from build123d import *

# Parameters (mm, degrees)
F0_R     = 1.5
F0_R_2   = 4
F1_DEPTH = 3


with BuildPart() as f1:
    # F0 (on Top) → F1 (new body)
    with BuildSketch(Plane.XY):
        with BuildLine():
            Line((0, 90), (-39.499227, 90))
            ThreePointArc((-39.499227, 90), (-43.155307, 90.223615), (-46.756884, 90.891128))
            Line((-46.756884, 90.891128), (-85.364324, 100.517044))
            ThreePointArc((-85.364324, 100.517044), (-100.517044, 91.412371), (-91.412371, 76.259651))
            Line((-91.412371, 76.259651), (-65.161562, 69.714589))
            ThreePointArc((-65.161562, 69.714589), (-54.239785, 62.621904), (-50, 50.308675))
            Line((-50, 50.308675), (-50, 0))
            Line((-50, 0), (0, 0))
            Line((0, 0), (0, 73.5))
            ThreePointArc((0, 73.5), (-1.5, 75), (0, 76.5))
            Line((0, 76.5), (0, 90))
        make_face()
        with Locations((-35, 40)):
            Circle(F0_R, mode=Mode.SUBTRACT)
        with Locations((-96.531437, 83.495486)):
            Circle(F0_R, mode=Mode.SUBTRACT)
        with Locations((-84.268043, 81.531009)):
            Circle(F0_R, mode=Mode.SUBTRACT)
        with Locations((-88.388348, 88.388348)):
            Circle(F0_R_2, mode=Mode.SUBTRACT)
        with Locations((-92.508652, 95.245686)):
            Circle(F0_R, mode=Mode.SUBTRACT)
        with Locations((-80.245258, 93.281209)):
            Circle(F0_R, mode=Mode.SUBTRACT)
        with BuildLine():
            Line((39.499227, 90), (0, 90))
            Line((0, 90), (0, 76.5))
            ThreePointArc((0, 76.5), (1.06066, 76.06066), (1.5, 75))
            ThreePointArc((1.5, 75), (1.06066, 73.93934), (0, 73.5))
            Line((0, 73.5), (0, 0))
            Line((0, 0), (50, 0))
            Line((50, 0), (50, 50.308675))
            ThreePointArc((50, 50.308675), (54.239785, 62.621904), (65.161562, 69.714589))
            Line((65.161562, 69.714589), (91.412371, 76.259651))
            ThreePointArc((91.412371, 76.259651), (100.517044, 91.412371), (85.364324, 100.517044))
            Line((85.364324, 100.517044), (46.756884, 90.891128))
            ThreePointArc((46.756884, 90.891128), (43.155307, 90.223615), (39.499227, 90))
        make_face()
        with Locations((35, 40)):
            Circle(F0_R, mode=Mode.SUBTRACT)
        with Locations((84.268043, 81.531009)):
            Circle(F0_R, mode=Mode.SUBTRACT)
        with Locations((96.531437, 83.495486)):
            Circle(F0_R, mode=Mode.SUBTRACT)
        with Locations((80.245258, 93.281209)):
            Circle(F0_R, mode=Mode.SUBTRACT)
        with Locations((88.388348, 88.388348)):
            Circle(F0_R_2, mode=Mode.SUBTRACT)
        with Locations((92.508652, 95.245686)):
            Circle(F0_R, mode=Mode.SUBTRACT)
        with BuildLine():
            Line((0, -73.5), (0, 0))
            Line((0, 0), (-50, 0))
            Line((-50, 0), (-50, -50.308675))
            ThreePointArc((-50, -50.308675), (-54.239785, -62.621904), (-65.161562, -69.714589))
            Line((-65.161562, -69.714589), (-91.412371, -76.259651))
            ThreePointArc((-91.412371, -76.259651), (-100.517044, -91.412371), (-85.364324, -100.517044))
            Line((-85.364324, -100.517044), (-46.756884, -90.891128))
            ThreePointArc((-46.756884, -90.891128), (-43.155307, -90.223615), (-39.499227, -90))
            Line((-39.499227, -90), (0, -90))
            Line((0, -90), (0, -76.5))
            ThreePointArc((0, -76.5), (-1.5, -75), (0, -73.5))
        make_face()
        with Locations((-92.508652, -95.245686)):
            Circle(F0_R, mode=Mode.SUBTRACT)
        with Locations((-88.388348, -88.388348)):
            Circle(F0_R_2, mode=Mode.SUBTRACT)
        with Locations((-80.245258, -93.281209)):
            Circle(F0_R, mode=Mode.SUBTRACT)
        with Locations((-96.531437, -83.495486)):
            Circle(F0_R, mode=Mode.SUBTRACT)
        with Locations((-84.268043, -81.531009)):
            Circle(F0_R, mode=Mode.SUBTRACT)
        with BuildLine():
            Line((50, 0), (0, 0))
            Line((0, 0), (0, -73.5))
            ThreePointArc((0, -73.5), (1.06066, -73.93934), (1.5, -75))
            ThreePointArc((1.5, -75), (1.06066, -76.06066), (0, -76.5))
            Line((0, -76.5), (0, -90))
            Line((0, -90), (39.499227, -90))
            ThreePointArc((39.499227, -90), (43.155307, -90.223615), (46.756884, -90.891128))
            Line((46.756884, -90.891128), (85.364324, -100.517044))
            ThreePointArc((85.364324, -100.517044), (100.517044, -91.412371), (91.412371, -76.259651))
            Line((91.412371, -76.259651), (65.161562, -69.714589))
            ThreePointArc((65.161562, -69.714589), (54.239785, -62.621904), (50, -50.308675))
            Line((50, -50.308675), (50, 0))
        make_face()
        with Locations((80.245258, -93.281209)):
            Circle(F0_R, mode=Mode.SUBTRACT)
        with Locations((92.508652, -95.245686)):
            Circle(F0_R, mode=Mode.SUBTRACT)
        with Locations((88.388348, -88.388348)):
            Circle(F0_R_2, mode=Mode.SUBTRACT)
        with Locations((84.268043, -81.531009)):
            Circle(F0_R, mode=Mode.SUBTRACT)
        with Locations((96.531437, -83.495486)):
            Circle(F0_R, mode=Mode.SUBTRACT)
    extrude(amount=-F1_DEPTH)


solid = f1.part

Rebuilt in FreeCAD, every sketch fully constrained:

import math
import FreeCAD as App
import Part
import Sketcher
from FreeCAD import Vector
Q = App.Units.Quantity

doc = App.newDocument("Part")
body = doc.addObject("PartDesign::Body", "Body")

# Sketch on XY plane
sketch1 = body.newObject("Sketcher::SketchObject", "Sketch")
sketch1.AttachmentSupport = (doc.getObject("XY_Plane"), [""])
sketch1.MapMode = "FlatFace"
sketch1.addGeometry(Part.ArcOfCircle(Part.Circle(Vector(-39.499233, 119.999961, 0), Vector(0, 0, 1), 29.999961), math.radians(-104.000007), math.radians(-89.999989)), False)
sketch1.addGeometry(Part.LineSegment(Vector(-46.756884, 90.891128, 0), Vector(-85.364324, 100.517044, 0)), False)
sketch1.addGeometry(Part.ArcOfCircle(Part.Circle(Vector(-88.388347, 88.388347, 0), Vector(0, 0, 1), 12.5), math.radians(76.000001), math.radians(256.000001)), False)
sketch1.addGeometry(Part.LineSegment(Vector(-91.412371, 76.259651, 0), Vector(-65.161562, 69.714589, 0)), False)
sketch1.addGeometry(Part.ArcOfCircle(Part.Circle(Vector(-70, 50.308674, 0), Vector(0, 0, 1), 20), math.radians(0.000002), math.radians(75.999999)), False)
sketch1.addGeometry(Part.LineSegment(Vector(-50, 50.308675, 0), Vector(-50, -50.308675, 0)), False)
sketch1.addGeometry(Part.ArcOfCircle(Part.Circle(Vector(-70, -50.308674, 0), Vector(0, 0, 1), 20), math.radians(-75.999999), math.radians(-0.000002)), False)
sketch1.addGeometry(Part.LineSegment(Vector(-65.161562, -69.714589, 0), Vector(-91.412371, -76.259651, 0)), False)
sketch1.addGeometry(Part.ArcOfCircle(Part.Circle(Vector(-88.388347, -88.388347, 0), Vector(0, 0, 1), 12.5), math.radians(103.999999), math.radians(283.999999)), False)
sketch1.addGeometry(Part.LineSegment(Vector(-85.364324, -100.517044, 0), Vector(-46.756884, -90.891128, 0)), False)
sketch1.addGeometry(Part.ArcOfCircle(Part.Circle(Vector(-39.499233, -119.999961, 0), Vector(0, 0, 1), 29.999961), math.radians(89.999989), math.radians(104.000007)), False)
sketch1.addGeometry(Part.LineSegment(Vector(-39.499227, -90, 0), Vector(39.499227, -90, 0)), False)
sketch1.addGeometry(Part.ArcOfCircle(Part.Circle(Vector(39.499233, -119.999961, 0), Vector(0, 0, 1), 29.999961), math.radians(75.999993), math.radians(90.000011)), False)
sketch1.addGeometry(Part.LineSegment(Vector(46.756884, -90.891128, 0), Vector(85.364324, -100.517044, 0)), False)
sketch1.addGeometry(Part.ArcOfCircle(Part.Circle(Vector(88.388347, -88.388347, 0), Vector(0, 0, 1), 12.5), math.radians(-103.999999), math.radians(76.000001)), False)
sketch1.addGeometry(Part.LineSegment(Vector(91.412371, -76.259651, 0), Vector(65.161562, -69.714589, 0)), False)
sketch1.addGeometry(Part.ArcOfCircle(Part.Circle(Vector(70, -50.308674, 0), Vector(0, 0, 1), 20), math.radians(-179.999998), math.radians(-104.000001)), False)
sketch1.addGeometry(Part.LineSegment(Vector(50, -50.308675, 0), Vector(50, 50.308675, 0)), False)
sketch1.addGeometry(Part.ArcOfCircle(Part.Circle(Vector(70, 50.308674, 0), Vector(0, 0, 1), 20), math.radians(104.000001), math.radians(179.999998)), False)
sketch1.addGeometry(Part.LineSegment(Vector(65.161562, 69.714589, 0), Vector(91.412371, 76.259651, 0)), False)
sketch1.addGeometry(Part.ArcOfCircle(Part.Circle(Vector(88.388347, 88.388347, 0), Vector(0, 0, 1), 12.5), math.radians(-76.000001), math.radians(103.999999)), False)
sketch1.addGeometry(Part.LineSegment(Vector(85.364324, 100.517044, 0), Vector(46.756884, 90.891128, 0)), False)
sketch1.addGeometry(Part.ArcOfCircle(Part.Circle(Vector(39.499233, 119.999961, 0), Vector(0, 0, 1), 29.999961), math.radians(-90.000011), math.radians(-75.999993)), False)
sketch1.addGeometry(Part.LineSegment(Vector(39.499227, 90, 0), Vector(-39.499227, 90, 0)), False)
sketch1.addGeometry(Part.Circle(Vector(-92.508652, -95.245686, 0), Vector(0, 0, 1), 1.5), False)
sketch1.addGeometry(Part.Circle(Vector(-88.388348, -88.388348, 0), Vector(0, 0, 1), 4), False)
sketch1.addGeometry(Part.Circle(Vector(-80.245258, -93.281209, 0), Vector(0, 0, 1), 1.5), False)
sketch1.addGeometry(Part.Circle(Vector(-96.531437, -83.495486, 0), Vector(0, 0, 1), 1.5), False)
sketch1.addGeometry(Part.Circle(Vector(-84.268043, -81.531009, 0), Vector(0, 0, 1), 1.5), False)
sketch1.addGeometry(Part.ArcOfCircle(Part.Circle(Vector(0, -75, 0), Vector(0, 0, 1), 1.5), math.radians(90), math.radians(270)), False)
sketch1.addGeometry(Part.ArcOfCircle(Part.Circle(Vector(-0.000001, -75.000001, 0), Vector(0, 0, 1), 1.500001), math.radians(0.000022), math.radians(89.999978)), False)
sketch1.addGeometry(Part.ArcOfCircle(Part.Circle(Vector(-0.000001, -74.999999, 0), Vector(0, 0, 1), 1.500001), math.radians(-89.999978), math.radians(-0.000022)), False)
sketch1.addGeometry(Part.Circle(Vector(80.245258, -93.281209, 0), Vector(0, 0, 1), 1.5), False)
sketch1.addGeometry(Part.Circle(Vector(92.508652, -95.245686, 0), Vector(0, 0, 1), 1.5), False)
sketch1.addGeometry(Part.Circle(Vector(88.388348, -88.388348, 0), Vector(0, 0, 1), 4), False)
sketch1.addGeometry(Part.Circle(Vector(84.268043, -81.531009, 0), Vector(0, 0, 1), 1.5), False)
sketch1.addGeometry(Part.Circle(Vector(96.531437, -83.495486, 0), Vector(0, 0, 1), 1.5), False)
sketch1.addGeometry(Part.Circle(Vector(-35, 40, 0), Vector(0, 0, 1), 1.5), False)
sketch1.addGeometry(Part.Circle(Vector(-96.531437, 83.495486, 0), Vector(0, 0, 1), 1.5), False)
sketch1.addGeometry(Part.Circle(Vector(-84.268043, 81.531009, 0), Vector(0, 0, 1), 1.5), False)
sketch1.addGeometry(Part.Circle(Vector(-88.388348, 88.388348, 0), Vector(0, 0, 1), 4), False)
sketch1.addGeometry(Part.Circle(Vector(-92.508652, 95.245686, 0), Vector(0, 0, 1), 1.5), False)
sketch1.addGeometry(Part.Circle(Vector(-80.245258, 93.281209, 0), Vector(0, 0, 1), 1.5), False)
sketch1.addGeometry(Part.Circle(Vector(35, 40, 0), Vector(0, 0, 1), 1.5), False)
sketch1.addGeometry(Part.ArcOfCircle(Part.Circle(Vector(0, 75, 0), Vector(0, 0, 1), 1.5), math.radians(90), math.radians(270)), False)
sketch1.addGeometry(Part.ArcOfCircle(Part.Circle(Vector(-0.000001, 74.999999, 0), Vector(0, 0, 1), 1.500001), math.radians(0.000022), math.radians(89.999978)), False)
sketch1.addGeometry(Part.ArcOfCircle(Part.Circle(Vector(-0.000001, 75.000001, 0), Vector(0, 0, 1), 1.500001), math.radians(-89.999978), math.radians(-0.000022)), False)
sketch1.addGeometry(Part.Circle(Vector(84.268043, 81.531009, 0), Vector(0, 0, 1), 1.5), False)
sketch1.addGeometry(Part.Circle(Vector(96.531437, 83.495486, 0), Vector(0, 0, 1), 1.5), False)
sketch1.addGeometry(Part.Circle(Vector(80.245258, 93.281209, 0), Vector(0, 0, 1), 1.5), False)
sketch1.addGeometry(Part.Circle(Vector(88.388348, 88.388348, 0), Vector(0, 0, 1), 4), False)
sketch1.addGeometry(Part.Circle(Vector(92.508652, 95.245686, 0), Vector(0, 0, 1), 1.5), False)
sketch1.addConstraint(Sketcher.Constraint("Tangent", 0, 1, 1, 1))
sketch1.addConstraint(Sketcher.Constraint("Tangent", 1, 2, 2, 1))
sketch1.addConstraint(Sketcher.Constraint("Tangent", 2, 2, 3, 1))
sketch1.addConstraint(Sketcher.Constraint("Tangent", 3, 2, 4, 2))
sketch1.addConstraint(Sketcher.Constraint("Tangent", 4, 1, 5, 1))
sketch1.addConstraint(Sketcher.Constraint("Tangent", 5, 2, 6, 2))
sketch1.addConstraint(Sketcher.Constraint("Tangent", 6, 1, 7, 1))
sketch1.addConstraint(Sketcher.Constraint("Tangent", 7, 2, 8, 1))
sketch1.addConstraint(Sketcher.Constraint("Tangent", 8, 2, 9, 1))
sketch1.addConstraint(Sketcher.Constraint("Tangent", 9, 2, 10, 2))
sketch1.addConstraint(Sketcher.Constraint("Tangent", 10, 1, 11, 1))
sketch1.addConstraint(Sketcher.Constraint("Tangent", 11, 2, 12, 2))
sketch1.addConstraint(Sketcher.Constraint("Tangent", 12, 1, 13, 1))
sketch1.addConstraint(Sketcher.Constraint("Tangent", 13, 2, 14, 1))
sketch1.addConstraint(Sketcher.Constraint("Tangent", 14, 2, 15, 1))
sketch1.addConstraint(Sketcher.Constraint("Tangent", 15, 2, 16, 2))
sketch1.addConstraint(Sketcher.Constraint("Tangent", 16, 1, 17, 1))
sketch1.addConstraint(Sketcher.Constraint("Tangent", 17, 2, 18, 2))
sketch1.addConstraint(Sketcher.Constraint("Tangent", 18, 1, 19, 1))
sketch1.addConstraint(Sketcher.Constraint("Tangent", 19, 2, 20, 1))
sketch1.addConstraint(Sketcher.Constraint("Tangent", 20, 2, 21, 1))
sketch1.addConstraint(Sketcher.Constraint("Tangent", 21, 2, 22, 2))
sketch1.addConstraint(Sketcher.Constraint("Tangent", 22, 1, 23, 1))
sketch1.addConstraint(Sketcher.Constraint("Tangent", 23, 2, 0, 2))
sketch1.addConstraint(Sketcher.Constraint("Tangent", 29, 1, 30, 2))
sketch1.addConstraint(Sketcher.Constraint("Tangent", 30, 1, 31, 2))
sketch1.addConstraint(Sketcher.Constraint("Tangent", 31, 1, 29, 2))
sketch1.addConstraint(Sketcher.Constraint("Tangent", 44, 1, 45, 2))
sketch1.addConstraint(Sketcher.Constraint("Tangent", 45, 1, 46, 2))
sketch1.addConstraint(Sketcher.Constraint("Tangent", 46, 1, 44, 2))
sketch1.addConstraint(Sketcher.Constraint("Vertical", 5))
sketch1.addConstraint(Sketcher.Constraint("Horizontal", 11))
sketch1.addConstraint(Sketcher.Constraint("Vertical", 17))
sketch1.addConstraint(Sketcher.Constraint("Horizontal", 23))
sketch1.addConstraint(Sketcher.Constraint("Coincident", 25, 3, 8, 3))
sketch1.addConstraint(Sketcher.Constraint("Coincident", 34, 3, 14, 3))
sketch1.addConstraint(Sketcher.Constraint("Coincident", 40, 3, 2, 3))
sketch1.addConstraint(Sketcher.Constraint("Coincident", 50, 3, 20, 3))
sketch1.addConstraint(Sketcher.Constraint("Equal", 4, 6))
sketch1.addConstraint(Sketcher.Constraint("Equal", 2, 8))
sketch1.addConstraint(Sketcher.Constraint("Equal", 0, 10))
sketch1.addConstraint(Sketcher.Constraint("Equal", 10, 12))
sketch1.addConstraint(Sketcher.Constraint("Equal", 8, 14))
sketch1.addConstraint(Sketcher.Constraint("Equal", 6, 16))
sketch1.addConstraint(Sketcher.Constraint("Equal", 16, 18))
sketch1.addConstraint(Sketcher.Constraint("Equal", 14, 20))
sketch1.addConstraint(Sketcher.Constraint("Equal", 12, 22))
sketch1.addConstraint(Sketcher.Constraint("Equal", 24, 26))
sketch1.addConstraint(Sketcher.Constraint("Equal", 26, 27))
sketch1.addConstraint(Sketcher.Constraint("Equal", 27, 28))
sketch1.addConstraint(Sketcher.Constraint("Equal", 28, 29))
sketch1.addConstraint(Sketcher.Constraint("Equal", 31, 32))
sketch1.addConstraint(Sketcher.Constraint("Equal", 32, 33))
sketch1.addConstraint(Sketcher.Constraint("Equal", 25, 34))
sketch1.addConstraint(Sketcher.Constraint("Equal", 33, 35))
sketch1.addConstraint(Sketcher.Constraint("Equal", 35, 36))
sketch1.addConstraint(Sketcher.Constraint("Equal", 36, 37))
sketch1.addConstraint(Sketcher.Constraint("Equal", 37, 38))
sketch1.addConstraint(Sketcher.Constraint("Equal", 38, 39))
sketch1.addConstraint(Sketcher.Constraint("Equal", 34, 40))
sketch1.addConstraint(Sketcher.Constraint("Equal", 39, 41))
sketch1.addConstraint(Sketcher.Constraint("Equal", 41, 42))
sketch1.addConstraint(Sketcher.Constraint("Equal", 42, 43))
sketch1.addConstraint(Sketcher.Constraint("Equal", 43, 44))
sketch1.addConstraint(Sketcher.Constraint("Equal", 46, 47))
sketch1.addConstraint(Sketcher.Constraint("Equal", 47, 48))
sketch1.addConstraint(Sketcher.Constraint("Equal", 48, 49))
sketch1.addConstraint(Sketcher.Constraint("Equal", 40, 50))
sketch1.addConstraint(Sketcher.Constraint("Equal", 49, 51))
sketch1.addConstraint(Sketcher.Constraint("Symmetric", 0, 3, 12, 3, -1, 1))
sketch1.addConstraint(Sketcher.Constraint("Symmetric", 2, 3, 14, 3, -1, 1))
sketch1.addConstraint(Sketcher.Constraint("Symmetric", 4, 3, 16, 3, -1, 1))
sketch1.addConstraint(Sketcher.Constraint("Symmetric", 8, 3, 20, 3, -1, 1))
sketch1.addConstraint(Sketcher.Constraint("Symmetric", 36, 3, 38, 3, -1, 1))
sketch1.addConstraint(Sketcher.Constraint("Symmetric", 35, 3, 39, 3, -1, 1))
sketch1.addConstraint(Sketcher.Constraint("Symmetric", 33, 3, 41, 3, -1, 1))
sketch1.addConstraint(Sketcher.Constraint("Symmetric", 32, 3, 42, 3, -1, 1))
sketch1.addConstraint(Sketcher.Constraint("Symmetric", 29, 3, 44, 3, -1, 1))
sketch1.addConstraint(Sketcher.Constraint("Symmetric", 28, 3, 47, 3, -1, 1))
sketch1.addConstraint(Sketcher.Constraint("Symmetric", 27, 3, 48, 3, -1, 1))
sketch1.addConstraint(Sketcher.Constraint("Symmetric", 26, 3, 49, 3, -1, 1))
sketch1.addConstraint(Sketcher.Constraint("Symmetric", 24, 3, 51, 3, -1, 1))
sketch1.addConstraint(Sketcher.Constraint("Symmetric", 8, 3, 14, 3, -2))
sketch1.addConstraint(Sketcher.Constraint("Symmetric", 26, 3, 32, 3, -2))
sketch1.addConstraint(Sketcher.Constraint("Symmetric", 24, 3, 33, 3, -2))
sketch1.addConstraint(Sketcher.Constraint("Symmetric", 28, 3, 35, 3, -2))
sketch1.addConstraint(Sketcher.Constraint("Symmetric", 27, 3, 36, 3, -2))
sketch1.addConstraint(Sketcher.Constraint("Symmetric", 37, 3, 43, 3, -2))
sketch1.addConstraint(Sketcher.Constraint("Symmetric", 30, 1, 45, 1, -1))
sketch1.addConstraint(Sketcher.Constraint("PointOnObject", 29, 1, -2))
sketch1.addConstraint(Sketcher.Constraint("PointOnObject", 31, 1, -2))
sketch1.addConstraint(Sketcher.Constraint("PointOnObject", 44, 1, -2))
sketch1.addConstraint(Sketcher.Constraint("PointOnObject", 46, 1, -2))
sketch1.addConstraint(Sketcher.Constraint("Parallel", 1, 3))
sketch1.addConstraint(Sketcher.Constraint("Parallel", 7, 9))
sketch1.addConstraint(Sketcher.Constraint("Parallel", 9, 19))
sketch1.addConstraint(Sketcher.Constraint("Parallel", 19, 21))
sketch1.addConstraint(Sketcher.Constraint("Horizontal", 6, 3, 16, 3))
sketch1.addConstraint(Sketcher.Constraint("Horizontal", 31, 3, 30, 1))
sketch1.addConstraint(Sketcher.Constraint("Diameter", 24, Q("3 mm")))
sketch1.addConstraint(Sketcher.Constraint("Diameter", 25, Q("8 mm")))
sketch1.addConstraint(Sketcher.Constraint("Radius", 4, Q("20 mm")))
sketch1.addConstraint(Sketcher.Constraint("Radius", 2, Q("12.5 mm")))
sketch1.addConstraint(Sketcher.Constraint("Angle", 1, Q("166 deg")))
sketch1.addConstraint(Sketcher.Constraint("DistanceX", 4, 3, -1, 1, Q("70 mm")))
sketch1.addConstraint(Sketcher.Constraint("DistanceY", 29, 3, -1, 1, Q("75 mm")))
sketch1.addConstraint(Sketcher.Constraint("DistanceX", 37, 3, -1, 1, Q("35 mm")))
sketch1.addConstraint(Sketcher.Constraint("DistanceY", -1, 1, 37, 3, Q("40 mm")))
sketch1.addConstraint(Sketcher.Constraint("DistanceY", 10, 1, -1, 1, Q("90 mm")))
sketch1.addConstraint(Sketcher.Constraint("Radius", 0, Q("29.999961 mm")))
sketch1.addConstraint(Sketcher.Constraint("DistanceY", 5, 2, 5, 1, Q("100.61735 mm")))
sketch1.addConstraint(Sketcher.Constraint("Distance", 3, Q("27.054442 mm")))
sketch1.addConstraint(Sketcher.Constraint("DistanceX", 24, 3, -1, 1, Q("92.508652 mm")))
sketch1.addConstraint(Sketcher.Constraint("DistanceX", 26, 3, -1, 1, Q("80.245258 mm")))
sketch1.addConstraint(Sketcher.Constraint("DistanceY", 26, 3, -1, 1, Q("93.281209 mm")))
sketch1.addConstraint(Sketcher.Constraint("DistanceY", 28, 3, -1, 1, Q("81.531009 mm")))
sketch1.addConstraint(Sketcher.Constraint("DistanceY", 24, 3, -1, 1, Q("95.245686 mm")))
sketch1.addConstraint(Sketcher.Constraint("DistanceX", 27, 3, -1, 1, Q("96.531437 mm")))
sketch1.addConstraint(Sketcher.Constraint("DistanceY", 27, 3, -1, 1, Q("83.495486 mm")))
sketch1.addConstraint(Sketcher.Constraint("DistanceX", 28, 3, -1, 1, Q("84.268043 mm")))
pad1 = body.newObject("PartDesign::Pad", "Pad")
pad1.Profile = sketch1
pad1.Length = 3
pad1.Reversed = True

doc.recompute()
